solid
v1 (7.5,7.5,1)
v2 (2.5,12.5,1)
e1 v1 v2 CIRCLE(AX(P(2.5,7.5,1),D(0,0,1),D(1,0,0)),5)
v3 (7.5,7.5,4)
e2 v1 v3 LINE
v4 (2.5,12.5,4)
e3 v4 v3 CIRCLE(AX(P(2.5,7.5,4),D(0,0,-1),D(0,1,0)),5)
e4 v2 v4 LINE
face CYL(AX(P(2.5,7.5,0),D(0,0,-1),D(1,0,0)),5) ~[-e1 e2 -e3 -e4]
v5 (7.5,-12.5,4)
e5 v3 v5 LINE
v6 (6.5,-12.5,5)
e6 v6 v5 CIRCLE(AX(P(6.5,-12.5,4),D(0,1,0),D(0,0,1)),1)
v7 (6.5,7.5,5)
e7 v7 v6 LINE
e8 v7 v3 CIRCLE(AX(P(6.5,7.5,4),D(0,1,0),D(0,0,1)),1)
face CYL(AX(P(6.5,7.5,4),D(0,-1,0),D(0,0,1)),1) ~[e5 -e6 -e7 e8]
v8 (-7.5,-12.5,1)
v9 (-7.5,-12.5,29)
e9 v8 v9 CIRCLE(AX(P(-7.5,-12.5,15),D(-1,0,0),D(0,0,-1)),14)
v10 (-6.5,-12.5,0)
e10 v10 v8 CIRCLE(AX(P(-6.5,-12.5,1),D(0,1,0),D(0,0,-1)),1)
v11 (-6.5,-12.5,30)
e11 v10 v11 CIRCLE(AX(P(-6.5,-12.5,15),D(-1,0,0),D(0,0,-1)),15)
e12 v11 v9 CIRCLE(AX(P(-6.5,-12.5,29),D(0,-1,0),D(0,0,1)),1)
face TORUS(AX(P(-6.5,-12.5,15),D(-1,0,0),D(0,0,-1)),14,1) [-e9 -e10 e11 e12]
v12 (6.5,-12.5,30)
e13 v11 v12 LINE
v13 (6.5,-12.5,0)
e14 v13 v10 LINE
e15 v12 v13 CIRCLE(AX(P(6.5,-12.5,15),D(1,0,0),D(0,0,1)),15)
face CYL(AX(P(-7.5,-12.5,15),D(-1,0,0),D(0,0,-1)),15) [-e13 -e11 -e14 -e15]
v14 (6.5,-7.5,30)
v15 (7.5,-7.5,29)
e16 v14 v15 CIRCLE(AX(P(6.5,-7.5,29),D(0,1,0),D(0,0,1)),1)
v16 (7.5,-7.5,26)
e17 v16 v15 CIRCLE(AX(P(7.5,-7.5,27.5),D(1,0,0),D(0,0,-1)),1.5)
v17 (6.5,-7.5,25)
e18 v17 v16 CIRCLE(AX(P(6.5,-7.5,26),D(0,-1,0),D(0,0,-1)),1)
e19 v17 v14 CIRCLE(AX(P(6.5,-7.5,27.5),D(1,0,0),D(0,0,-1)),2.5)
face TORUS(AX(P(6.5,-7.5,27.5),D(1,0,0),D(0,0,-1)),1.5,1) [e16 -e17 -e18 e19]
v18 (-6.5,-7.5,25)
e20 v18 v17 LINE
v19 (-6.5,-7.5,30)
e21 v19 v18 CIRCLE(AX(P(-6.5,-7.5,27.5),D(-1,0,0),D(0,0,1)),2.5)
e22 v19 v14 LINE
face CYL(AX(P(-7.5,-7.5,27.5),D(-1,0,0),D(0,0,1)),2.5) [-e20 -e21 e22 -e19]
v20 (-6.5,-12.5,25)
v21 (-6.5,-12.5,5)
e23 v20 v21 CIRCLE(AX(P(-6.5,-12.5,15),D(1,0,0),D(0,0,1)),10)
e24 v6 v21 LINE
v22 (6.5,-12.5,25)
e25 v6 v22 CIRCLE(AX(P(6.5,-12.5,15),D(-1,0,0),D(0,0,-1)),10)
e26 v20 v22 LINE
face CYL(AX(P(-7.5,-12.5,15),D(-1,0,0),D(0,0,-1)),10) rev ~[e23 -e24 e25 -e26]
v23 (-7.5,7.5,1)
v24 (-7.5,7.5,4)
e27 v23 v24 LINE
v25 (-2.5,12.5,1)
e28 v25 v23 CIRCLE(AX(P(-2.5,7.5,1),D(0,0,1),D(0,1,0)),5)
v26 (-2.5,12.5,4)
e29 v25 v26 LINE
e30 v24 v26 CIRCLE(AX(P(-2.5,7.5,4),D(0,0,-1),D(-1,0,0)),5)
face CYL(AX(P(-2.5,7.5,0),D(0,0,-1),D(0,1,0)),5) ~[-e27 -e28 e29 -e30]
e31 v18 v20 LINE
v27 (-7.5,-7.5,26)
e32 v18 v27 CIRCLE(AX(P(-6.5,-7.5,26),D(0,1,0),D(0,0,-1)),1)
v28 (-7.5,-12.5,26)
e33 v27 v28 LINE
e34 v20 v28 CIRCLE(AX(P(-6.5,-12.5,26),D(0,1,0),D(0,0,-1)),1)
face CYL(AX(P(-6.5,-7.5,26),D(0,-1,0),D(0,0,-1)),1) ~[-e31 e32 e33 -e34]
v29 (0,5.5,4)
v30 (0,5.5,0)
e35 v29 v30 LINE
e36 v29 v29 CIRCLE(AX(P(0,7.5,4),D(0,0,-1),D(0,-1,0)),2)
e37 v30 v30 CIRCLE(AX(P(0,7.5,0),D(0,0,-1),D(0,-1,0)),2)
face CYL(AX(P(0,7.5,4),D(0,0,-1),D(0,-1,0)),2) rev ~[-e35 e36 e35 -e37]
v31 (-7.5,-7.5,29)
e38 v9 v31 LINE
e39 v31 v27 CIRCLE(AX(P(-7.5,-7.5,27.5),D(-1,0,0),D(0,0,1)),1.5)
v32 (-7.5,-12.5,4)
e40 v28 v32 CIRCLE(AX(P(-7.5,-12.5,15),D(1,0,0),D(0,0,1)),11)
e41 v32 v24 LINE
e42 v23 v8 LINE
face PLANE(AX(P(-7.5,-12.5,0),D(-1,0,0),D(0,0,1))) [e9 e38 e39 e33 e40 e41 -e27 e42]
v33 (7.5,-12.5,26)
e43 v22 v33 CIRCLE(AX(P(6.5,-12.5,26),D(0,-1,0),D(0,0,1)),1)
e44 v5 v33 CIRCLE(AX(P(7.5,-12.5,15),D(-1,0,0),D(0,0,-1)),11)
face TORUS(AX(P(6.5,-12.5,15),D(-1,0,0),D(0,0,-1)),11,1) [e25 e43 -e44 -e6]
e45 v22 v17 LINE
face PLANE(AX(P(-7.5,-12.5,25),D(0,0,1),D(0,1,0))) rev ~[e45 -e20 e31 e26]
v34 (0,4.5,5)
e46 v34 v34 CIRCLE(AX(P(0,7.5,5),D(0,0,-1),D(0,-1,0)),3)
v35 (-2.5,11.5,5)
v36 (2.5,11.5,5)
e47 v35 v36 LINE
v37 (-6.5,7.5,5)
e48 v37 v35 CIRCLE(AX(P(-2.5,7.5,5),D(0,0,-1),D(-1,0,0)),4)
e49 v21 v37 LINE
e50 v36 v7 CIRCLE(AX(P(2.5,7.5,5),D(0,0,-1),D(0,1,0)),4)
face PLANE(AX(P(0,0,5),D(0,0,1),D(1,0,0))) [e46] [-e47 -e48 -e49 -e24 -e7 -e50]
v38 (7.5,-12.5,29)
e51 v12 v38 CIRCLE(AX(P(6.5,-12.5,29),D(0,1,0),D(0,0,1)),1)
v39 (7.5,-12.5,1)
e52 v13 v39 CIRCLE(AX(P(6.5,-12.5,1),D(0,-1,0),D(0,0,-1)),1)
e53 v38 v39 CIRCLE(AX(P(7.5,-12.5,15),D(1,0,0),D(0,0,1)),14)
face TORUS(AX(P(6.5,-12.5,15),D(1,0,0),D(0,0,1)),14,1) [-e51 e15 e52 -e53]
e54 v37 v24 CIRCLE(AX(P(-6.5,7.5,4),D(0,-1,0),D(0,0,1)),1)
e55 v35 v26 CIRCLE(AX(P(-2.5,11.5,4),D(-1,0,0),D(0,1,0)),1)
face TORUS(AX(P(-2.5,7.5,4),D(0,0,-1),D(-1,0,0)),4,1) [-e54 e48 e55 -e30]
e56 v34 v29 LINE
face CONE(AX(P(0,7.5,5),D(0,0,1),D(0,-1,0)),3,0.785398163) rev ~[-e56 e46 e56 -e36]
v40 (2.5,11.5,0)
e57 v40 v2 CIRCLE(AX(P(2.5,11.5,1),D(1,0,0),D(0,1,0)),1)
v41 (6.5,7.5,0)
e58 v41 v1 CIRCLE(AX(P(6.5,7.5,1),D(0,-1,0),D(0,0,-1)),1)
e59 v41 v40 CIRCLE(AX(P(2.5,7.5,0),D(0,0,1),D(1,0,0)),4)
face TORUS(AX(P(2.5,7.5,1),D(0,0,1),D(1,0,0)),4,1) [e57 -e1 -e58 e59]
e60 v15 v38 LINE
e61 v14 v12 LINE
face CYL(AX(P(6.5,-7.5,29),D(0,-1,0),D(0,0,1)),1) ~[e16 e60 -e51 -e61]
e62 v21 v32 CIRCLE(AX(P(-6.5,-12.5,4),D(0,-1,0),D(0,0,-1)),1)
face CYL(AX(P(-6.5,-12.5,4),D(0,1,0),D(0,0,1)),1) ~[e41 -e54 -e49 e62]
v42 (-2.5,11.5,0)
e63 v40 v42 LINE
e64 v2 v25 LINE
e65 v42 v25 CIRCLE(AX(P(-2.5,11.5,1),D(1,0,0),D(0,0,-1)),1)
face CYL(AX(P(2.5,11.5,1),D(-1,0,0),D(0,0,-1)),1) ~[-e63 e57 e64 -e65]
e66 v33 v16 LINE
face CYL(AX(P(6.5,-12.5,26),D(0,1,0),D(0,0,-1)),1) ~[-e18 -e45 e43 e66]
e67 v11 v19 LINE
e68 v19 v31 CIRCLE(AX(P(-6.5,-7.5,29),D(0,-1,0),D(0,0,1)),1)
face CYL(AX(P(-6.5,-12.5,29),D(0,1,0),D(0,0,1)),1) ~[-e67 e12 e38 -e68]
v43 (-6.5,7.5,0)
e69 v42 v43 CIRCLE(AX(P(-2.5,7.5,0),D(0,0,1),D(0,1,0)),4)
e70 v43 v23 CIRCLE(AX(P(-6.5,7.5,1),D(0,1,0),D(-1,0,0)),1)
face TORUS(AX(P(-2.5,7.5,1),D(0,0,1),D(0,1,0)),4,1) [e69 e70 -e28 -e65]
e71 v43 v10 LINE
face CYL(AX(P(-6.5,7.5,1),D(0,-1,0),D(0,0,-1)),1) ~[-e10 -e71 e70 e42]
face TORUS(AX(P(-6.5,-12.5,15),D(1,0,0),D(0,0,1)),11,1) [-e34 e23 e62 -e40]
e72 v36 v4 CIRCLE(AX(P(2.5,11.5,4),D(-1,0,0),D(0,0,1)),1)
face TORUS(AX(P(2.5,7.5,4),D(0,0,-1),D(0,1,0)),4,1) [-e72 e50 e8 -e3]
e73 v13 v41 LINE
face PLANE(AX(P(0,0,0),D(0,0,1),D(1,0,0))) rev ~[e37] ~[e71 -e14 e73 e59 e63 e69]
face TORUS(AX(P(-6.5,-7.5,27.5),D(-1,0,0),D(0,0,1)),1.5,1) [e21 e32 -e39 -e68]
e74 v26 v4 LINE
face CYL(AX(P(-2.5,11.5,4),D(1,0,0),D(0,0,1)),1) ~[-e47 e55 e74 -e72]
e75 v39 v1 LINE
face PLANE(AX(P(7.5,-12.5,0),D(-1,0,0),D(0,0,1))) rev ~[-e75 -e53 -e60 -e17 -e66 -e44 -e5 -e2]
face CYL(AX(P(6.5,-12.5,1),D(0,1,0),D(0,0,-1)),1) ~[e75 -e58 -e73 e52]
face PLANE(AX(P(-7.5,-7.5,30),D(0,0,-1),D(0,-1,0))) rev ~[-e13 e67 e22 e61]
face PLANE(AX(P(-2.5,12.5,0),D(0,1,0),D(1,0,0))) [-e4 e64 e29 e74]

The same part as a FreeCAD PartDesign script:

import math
import FreeCAD as App
import Part
import Sketcher
from FreeCAD import Vector


def edges_at(feature, points):
    """Names of the edges that pass closest to the given points."""
    edges = feature.Shape.Edges
    near = lambda p: min(range(len(edges)), key=lambda i: edges[i].distToShape(Part.Vertex(*p))[0])
    return sorted({f"Edge{near(p) + 1}" for p in points})

doc = App.newDocument("Part")
body = doc.addObject("PartDesign::Body", "Body")

# Sketch on XY plane
sketch1 = body.newObject("Sketcher::SketchObject", "Sketch")
sketch1.AttachmentSupport = (doc.getObject("XY_Plane"), [""])
sketch1.MapMode = "FlatFace"
sketch1.addGeometry(Part.LineSegment(Vector(2.5, 12.5, 0), Vector(-2.5, 12.5, 0)), False)
sketch1.addGeometry(Part.ArcOfCircle(Part.Circle(Vector(-2.5, 7.5, 0), Vector(0, 0, 1), 5), math.radians(90), math.radians(180)), False)
sketch1.addGeometry(Part.LineSegment(Vector(-7.5, 7.5, 0), Vector(-7.5, -12.5, 0)), False)
sketch1.addGeometry(Part.LineSegment(Vector(-7.5, -12.5, 0), Vector(7.5, -12.5, 0)), False)
sketch1.addGeometry(Part.LineSegment(Vector(7.5, -12.5, 0), Vector(7.5, 7.5, 0)), False)
sketch1.addGeometry(Part.ArcOfCircle(Part.Circle(Vector(2.5, 7.5, 0), Vector(0, 0, 1), 5), math.radians(0), math.radians(90)), False)
sketch1.addGeometry(Part.Circle(Vector(0, 7.5, 0), Vector(0, 0, 1), 1.5), False)
sketch1.addConstraint(Sketcher.Constraint("Tangent", 0, 2, 1, 1))
sketch1.addConstraint(Sketcher.Constraint("Tangent", 1, 2, 2, 1))
sketch1.addConstraint(Sketcher.Constraint("Coincident", 2, 2, 3, 1))
sketch1.addConstraint(Sketcher.Constraint("Coincident", 3, 2, 4, 1))
sketch1.addConstraint(Sketcher.Constraint("Tangent", 4, 2, 5, 1))
sketch1.addConstraint(Sketcher.Constraint("Tangent", 5, 2, 0, 1))
sketch1.addConstraint(Sketcher.Constraint("Horizontal", 0))
sketch1.addConstraint(Sketcher.Constraint("Vertical", 2))
sketch1.addConstraint(Sketcher.Constraint("Horizontal", 3))
sketch1.addConstraint(Sketcher.Constraint("Vertical", 4))
sketch1.addConstraint(Sketcher.Constraint("Equal", 1, 5))
sketch1.addConstraint(Sketcher.Constraint("PointOnObject", 6, 3, -2))
sketch1.addConstraint(Sketcher.Constraint("Horizontal", 5, 3, 6, 3))
sketch1.addConstraint(Sketcher.Constraint("Diameter", 6, 3.0))
sketch1.addConstraint(Sketcher.Constraint("Radius", 1, 5.0))
sketch1.addConstraint(Sketcher.Constraint("DistanceX", 0, 2, 0, 1, 5.0))
sketch1.addConstraint(Sketcher.Constraint("DistanceY", 2, 2, 2, 1, 20.0))
sketch1.addConstraint(Sketcher.Constraint("DistanceX", 1, 3, -1, 1, 2.5))
sketch1.addConstraint(Sketcher.Constraint("DistanceY", -1, 1, 1, 3, 7.5))
pad1 = body.newObject("PartDesign::Pad", "Pad")
pad1.Profile = sketch1
pad1.Length = 5

# Sketch on XY plane
sketch2 = body.newObject("Sketcher::SketchObject", "Sketch001")
sketch2.AttachmentSupport = (doc.getObject("XY_Plane"), [""])
sketch2.MapMode = "FlatFace"
sketch2.AttachmentOffset = App.Placement(Vector(0, 0, 5), App.Rotation())
sketch2.addGeometry(Part.Circle(Vector(0, 7.5, 0), Vector(0, 0, 1), 2), False)
sketch2.addConstraint(Sketcher.Constraint("PointOnObject", 0, 3, -2))
sketch2.addConstraint(Sketcher.Constraint("Diameter", 0, 4.0))
sketch2.addConstraint(Sketcher.Constraint("DistanceY", -1, 1, 0, 3, 7.5))
doc.recompute()
hole = body.newObject("PartDesign::Hole", "Hole")
hole.Profile = sketch2
hole.ThreadType = "None"
hole.Diameter = 4
hole.DepthType = "ThroughAll"
hole.HoleCutType = "Countersink"
hole.HoleCutDiameter = 6
hole.HoleCutCountersinkAngle = 90

# Sketch on YZ plane
sketch3 = body.newObject("Sketcher::SketchObject", "Sketch002")
sketch3.AttachmentSupport = (doc.getObject("YZ_Plane"), [""])
sketch3.MapMode = "FlatFace"
sketch3.AttachmentOffset = App.Placement(Vector(0, 0, -7.5), App.Rotation())
sketch3.addGeometry(Part.LineSegment(Vector(-12.5, 5, 0), Vector(-12.5, 0, 0)), False)
sketch3.addGeometry(Part.ArcOfCircle(Part.Circle(Vector(-12.5, 15, 0), Vector(0, 0, 1), 15), math.radians(90), math.radians(270)), False)
sketch3.addGeometry(Part.LineSegment(Vector(-12.5, 30, 0), Vector(-7.5, 30, 0)), False)
sketch3.addGeometry(Part.ArcOfCircle(Part.Circle(Vector(-7.5, 27.5, 0), Vector(0, 0, 1), 2.5), math.radians(-90), math.radians(90)), False)
sketch3.addGeometry(Part.LineSegment(Vector(-7.5, 25, 0), Vector(-12.5, 25, 0)), False)
sketch3.addGeometry(Part.ArcOfCircle(Part.Circle(Vector(-12.5, 15, 0), Vector(0, 0, 1), 10), math.radians(90), math.radians(270)), False)
sketch3.addConstraint(Sketcher.Constraint("Coincident", 0, 2, 1, 2))
sketch3.addConstraint(Sketcher.Constraint("Tangent", 1, 1, 2, 1))
sketch3.addConstraint(Sketcher.Constraint("Tangent", 2, 2, 3, 2))
sketch3.addConstraint(Sketcher.Constraint("Tangent", 3, 1, 4, 1))
sketch3.addConstraint(Sketcher.Constraint("Tangent", 4, 2, 5, 1))
sketch3.addConstraint(Sketcher.Constraint("Coincident", 5, 2, 0, 1))
sketch3.addConstraint(Sketcher.Constraint("Vertical", 0))
sketch3.addConstraint(Sketcher.Constraint("Horizontal", 2))
sketch3.addConstraint(Sketcher.Constraint("Horizontal", 4))
sketch3.addConstraint(Sketcher.Constraint("Coincident", 5, 3, 1, 3))
sketch3.addConstraint(Sketcher.Constraint("PointOnObject", 0, 2, -1))
sketch3.addConstraint(Sketcher.Constraint("Vertical", 5, 3, 0, 2))
sketch3.addConstraint(Sketcher.Constraint("Equal", 4, 0))
sketch3.addConstraint(Sketcher.Constraint("Radius", 1, 15.0))
sketch3.addConstraint(Sketcher.Constraint("Radius", 3, 2.5))
sketch3.addConstraint(Sketcher.Constraint("DistanceX", 1, 3, -1, 1, 12.5))
pad2 = body.newObject("PartDesign::Pad", "Pad001")
pad2.Profile = sketch3
pad2.Length = 15
doc.recompute()

fillet = body.newObject("PartDesign::Fillet", "Fillet")
fillet.Base = (pad2, edges_at(pad2, [
    (7.5, -2.5, 5),
    (6.035, 11.036, 5),
    (0, 12.5, 5),
    (-6.035, 11.036, 5),
    (-7.5, -2.5, 5),
    (-7.5, -22.5, 15),
    (-7.5, -10, 25),
    (-7.5, -5, 27.5),
    (-7.5, -10, 30),
    (-7.5, -27.5, 15),
    (-7.5, -2.5, 0),
    (-6.035, 11.036, 0),
    (0, 12.5, 0),
    (6.035, 11.036, 0),
    (7.5, -2.5, 0),
    (7.5, -10, 30),
    (7.5, -5, 27.5),
    (7.5, -10, 25),
]))
fillet.Radius = 1

doc.recompute()
